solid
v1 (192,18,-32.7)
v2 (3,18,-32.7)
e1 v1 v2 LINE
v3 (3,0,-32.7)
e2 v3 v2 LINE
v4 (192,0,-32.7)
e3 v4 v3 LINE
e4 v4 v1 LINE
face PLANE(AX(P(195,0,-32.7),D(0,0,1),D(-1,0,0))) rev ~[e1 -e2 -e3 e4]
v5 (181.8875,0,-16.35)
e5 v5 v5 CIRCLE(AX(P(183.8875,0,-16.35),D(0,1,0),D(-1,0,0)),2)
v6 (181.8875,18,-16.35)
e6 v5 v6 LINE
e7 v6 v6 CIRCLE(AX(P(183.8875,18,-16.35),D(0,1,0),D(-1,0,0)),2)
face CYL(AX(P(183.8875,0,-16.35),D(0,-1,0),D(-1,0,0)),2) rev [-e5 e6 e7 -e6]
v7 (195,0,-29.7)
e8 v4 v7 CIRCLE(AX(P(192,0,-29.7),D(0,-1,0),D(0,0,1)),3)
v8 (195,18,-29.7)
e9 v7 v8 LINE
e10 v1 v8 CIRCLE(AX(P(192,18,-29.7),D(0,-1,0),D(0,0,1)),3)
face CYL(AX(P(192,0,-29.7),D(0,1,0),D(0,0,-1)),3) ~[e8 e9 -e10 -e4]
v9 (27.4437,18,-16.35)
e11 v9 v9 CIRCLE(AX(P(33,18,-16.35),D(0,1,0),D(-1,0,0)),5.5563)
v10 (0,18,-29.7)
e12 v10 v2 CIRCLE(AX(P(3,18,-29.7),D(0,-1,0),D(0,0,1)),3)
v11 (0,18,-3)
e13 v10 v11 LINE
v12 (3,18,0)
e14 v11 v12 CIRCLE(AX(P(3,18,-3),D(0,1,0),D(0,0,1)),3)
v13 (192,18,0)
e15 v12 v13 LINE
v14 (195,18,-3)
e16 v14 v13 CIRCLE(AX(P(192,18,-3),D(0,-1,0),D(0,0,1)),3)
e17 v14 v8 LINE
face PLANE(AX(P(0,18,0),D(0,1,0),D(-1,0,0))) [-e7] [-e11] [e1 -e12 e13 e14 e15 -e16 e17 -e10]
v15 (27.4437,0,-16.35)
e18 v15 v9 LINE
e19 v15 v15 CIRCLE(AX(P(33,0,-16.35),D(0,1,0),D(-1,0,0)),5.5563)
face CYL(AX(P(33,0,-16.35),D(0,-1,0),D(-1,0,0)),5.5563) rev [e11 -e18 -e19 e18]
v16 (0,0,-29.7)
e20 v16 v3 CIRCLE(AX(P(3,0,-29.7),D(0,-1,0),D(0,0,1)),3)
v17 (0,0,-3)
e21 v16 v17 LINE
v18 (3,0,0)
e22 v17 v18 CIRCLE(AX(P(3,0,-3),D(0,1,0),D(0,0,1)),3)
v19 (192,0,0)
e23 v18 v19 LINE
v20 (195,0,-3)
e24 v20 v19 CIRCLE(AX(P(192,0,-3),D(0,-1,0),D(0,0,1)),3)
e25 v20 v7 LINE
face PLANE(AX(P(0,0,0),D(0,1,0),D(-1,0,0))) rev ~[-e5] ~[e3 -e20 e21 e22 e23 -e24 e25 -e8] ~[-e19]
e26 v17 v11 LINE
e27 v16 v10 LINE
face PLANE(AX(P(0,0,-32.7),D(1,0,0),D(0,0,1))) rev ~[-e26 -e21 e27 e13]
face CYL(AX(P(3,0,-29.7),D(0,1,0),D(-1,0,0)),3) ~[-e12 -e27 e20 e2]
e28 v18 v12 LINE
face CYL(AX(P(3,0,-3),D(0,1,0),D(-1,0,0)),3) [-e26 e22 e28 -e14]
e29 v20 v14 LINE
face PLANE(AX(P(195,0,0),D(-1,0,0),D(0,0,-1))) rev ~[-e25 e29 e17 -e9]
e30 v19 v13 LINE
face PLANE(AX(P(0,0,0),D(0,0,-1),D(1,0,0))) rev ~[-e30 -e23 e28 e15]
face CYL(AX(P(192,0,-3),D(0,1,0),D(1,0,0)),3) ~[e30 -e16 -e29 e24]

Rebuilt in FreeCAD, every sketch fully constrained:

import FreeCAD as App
import Part
import Sketcher
Q = App.Units.Quantity


def edges_at(feature, points):
    """Names of the edges that pass closest to the given points."""
    edges = feature.Shape.Edges
    near = lambda p: min(range(len(edges)), key=lambda i: edges[i].distToShape(Part.Vertex(*p))[0])
    return sorted({f"Edge{near(p) + 1}" for p in points})


def add_polygon(sketch, points):
    """Adds a closed chain of lines whose ends are joined by coincident constraints."""
    first, n = sketch.GeometryCount, len(points)
    for a, b in zip(points, points[1:] + points[:1]):
        sketch.addGeometry(Part.LineSegment(App.Vector(*a, 0), App.Vector(*b, 0)), False)
    for i in range(n):
        sketch.addConstraint(Sketcher.Constraint("Coincident", first + i, 2, first + (i + 1) % n, 1))

doc = App.newDocument("Part")
body = doc.addObject("PartDesign::Body", "Body")

sketch1 = body.newObject("Sketcher::SketchObject", "Sketch")
sketch1.AttachmentSupport = (doc.getObject("XZ_Plane"), [""])
sketch1.MapMode = "FlatFace"
add_polygon(sketch1, [(0, -32.7), (0, 0), (195, 0), (195, -32.7)])
sketch1.addGeometry(Part.Circle(App.Vector(183.9, -16.4, 0), App.Vector(0, 0, 1), 2), False)
sketch1.addGeometry(Part.Circle(App.Vector(33, -16.4, 0), App.Vector(0, 0, 1), 5.6), False)
sketch1.addConstraint(Sketcher.Constraint("Vertical", 0))
sketch1.addConstraint(Sketcher.Constraint("Horizontal", 1))
sketch1.addConstraint(Sketcher.Constraint("Vertical", 2))
sketch1.addConstraint(Sketcher.Constraint("Horizontal", 3))
sketch1.addConstraint(Sketcher.Constraint("Coincident", 0, 2, -1, 1))
sketch1.addConstraint(Sketcher.Constraint("Horizontal", 4, 3, 5, 3))
sketch1.addConstraint(Sketcher.Constraint("Diameter", 4, Q("4 mm")))
sketch1.addConstraint(Sketcher.Constraint("DistanceX", 1, 1, 1, 2, Q("195 mm")))
sketch1.addConstraint(Sketcher.Constraint("DistanceY", 0, 1, 0, 2, Q("32.7 mm")))
sketch1.addConstraint(Sketcher.Constraint("DistanceX", -1, 1, 5, 3, Q("33 mm")))
sketch1.addConstraint(Sketcher.Constraint("Diameter", 5, Q("11.1126 mm")))
sketch1.addConstraint(Sketcher.Constraint("DistanceX", 4, 3, 1, 2, Q("11.1125 mm")))
sketch1.addConstraint(Sketcher.Constraint("DistanceY", 4, 3, -1, 1, Q("16.35 mm")))
pad1 = body.newObject("PartDesign::Pad", "Pad")
pad1.Profile = sketch1
pad1.Length = 18
pad1.Reversed = True
doc.recompute()

fillet = body.newObject("PartDesign::Fillet", "Fillet")
fillet.Base = (pad1, edges_at(pad1, [
    (0, 9, 0),
    (195, 9, 0),
    (195, 9, -32.7),
    (0, 9, -32.7),
]))
fillet.Radius = 3

doc.recompute()
